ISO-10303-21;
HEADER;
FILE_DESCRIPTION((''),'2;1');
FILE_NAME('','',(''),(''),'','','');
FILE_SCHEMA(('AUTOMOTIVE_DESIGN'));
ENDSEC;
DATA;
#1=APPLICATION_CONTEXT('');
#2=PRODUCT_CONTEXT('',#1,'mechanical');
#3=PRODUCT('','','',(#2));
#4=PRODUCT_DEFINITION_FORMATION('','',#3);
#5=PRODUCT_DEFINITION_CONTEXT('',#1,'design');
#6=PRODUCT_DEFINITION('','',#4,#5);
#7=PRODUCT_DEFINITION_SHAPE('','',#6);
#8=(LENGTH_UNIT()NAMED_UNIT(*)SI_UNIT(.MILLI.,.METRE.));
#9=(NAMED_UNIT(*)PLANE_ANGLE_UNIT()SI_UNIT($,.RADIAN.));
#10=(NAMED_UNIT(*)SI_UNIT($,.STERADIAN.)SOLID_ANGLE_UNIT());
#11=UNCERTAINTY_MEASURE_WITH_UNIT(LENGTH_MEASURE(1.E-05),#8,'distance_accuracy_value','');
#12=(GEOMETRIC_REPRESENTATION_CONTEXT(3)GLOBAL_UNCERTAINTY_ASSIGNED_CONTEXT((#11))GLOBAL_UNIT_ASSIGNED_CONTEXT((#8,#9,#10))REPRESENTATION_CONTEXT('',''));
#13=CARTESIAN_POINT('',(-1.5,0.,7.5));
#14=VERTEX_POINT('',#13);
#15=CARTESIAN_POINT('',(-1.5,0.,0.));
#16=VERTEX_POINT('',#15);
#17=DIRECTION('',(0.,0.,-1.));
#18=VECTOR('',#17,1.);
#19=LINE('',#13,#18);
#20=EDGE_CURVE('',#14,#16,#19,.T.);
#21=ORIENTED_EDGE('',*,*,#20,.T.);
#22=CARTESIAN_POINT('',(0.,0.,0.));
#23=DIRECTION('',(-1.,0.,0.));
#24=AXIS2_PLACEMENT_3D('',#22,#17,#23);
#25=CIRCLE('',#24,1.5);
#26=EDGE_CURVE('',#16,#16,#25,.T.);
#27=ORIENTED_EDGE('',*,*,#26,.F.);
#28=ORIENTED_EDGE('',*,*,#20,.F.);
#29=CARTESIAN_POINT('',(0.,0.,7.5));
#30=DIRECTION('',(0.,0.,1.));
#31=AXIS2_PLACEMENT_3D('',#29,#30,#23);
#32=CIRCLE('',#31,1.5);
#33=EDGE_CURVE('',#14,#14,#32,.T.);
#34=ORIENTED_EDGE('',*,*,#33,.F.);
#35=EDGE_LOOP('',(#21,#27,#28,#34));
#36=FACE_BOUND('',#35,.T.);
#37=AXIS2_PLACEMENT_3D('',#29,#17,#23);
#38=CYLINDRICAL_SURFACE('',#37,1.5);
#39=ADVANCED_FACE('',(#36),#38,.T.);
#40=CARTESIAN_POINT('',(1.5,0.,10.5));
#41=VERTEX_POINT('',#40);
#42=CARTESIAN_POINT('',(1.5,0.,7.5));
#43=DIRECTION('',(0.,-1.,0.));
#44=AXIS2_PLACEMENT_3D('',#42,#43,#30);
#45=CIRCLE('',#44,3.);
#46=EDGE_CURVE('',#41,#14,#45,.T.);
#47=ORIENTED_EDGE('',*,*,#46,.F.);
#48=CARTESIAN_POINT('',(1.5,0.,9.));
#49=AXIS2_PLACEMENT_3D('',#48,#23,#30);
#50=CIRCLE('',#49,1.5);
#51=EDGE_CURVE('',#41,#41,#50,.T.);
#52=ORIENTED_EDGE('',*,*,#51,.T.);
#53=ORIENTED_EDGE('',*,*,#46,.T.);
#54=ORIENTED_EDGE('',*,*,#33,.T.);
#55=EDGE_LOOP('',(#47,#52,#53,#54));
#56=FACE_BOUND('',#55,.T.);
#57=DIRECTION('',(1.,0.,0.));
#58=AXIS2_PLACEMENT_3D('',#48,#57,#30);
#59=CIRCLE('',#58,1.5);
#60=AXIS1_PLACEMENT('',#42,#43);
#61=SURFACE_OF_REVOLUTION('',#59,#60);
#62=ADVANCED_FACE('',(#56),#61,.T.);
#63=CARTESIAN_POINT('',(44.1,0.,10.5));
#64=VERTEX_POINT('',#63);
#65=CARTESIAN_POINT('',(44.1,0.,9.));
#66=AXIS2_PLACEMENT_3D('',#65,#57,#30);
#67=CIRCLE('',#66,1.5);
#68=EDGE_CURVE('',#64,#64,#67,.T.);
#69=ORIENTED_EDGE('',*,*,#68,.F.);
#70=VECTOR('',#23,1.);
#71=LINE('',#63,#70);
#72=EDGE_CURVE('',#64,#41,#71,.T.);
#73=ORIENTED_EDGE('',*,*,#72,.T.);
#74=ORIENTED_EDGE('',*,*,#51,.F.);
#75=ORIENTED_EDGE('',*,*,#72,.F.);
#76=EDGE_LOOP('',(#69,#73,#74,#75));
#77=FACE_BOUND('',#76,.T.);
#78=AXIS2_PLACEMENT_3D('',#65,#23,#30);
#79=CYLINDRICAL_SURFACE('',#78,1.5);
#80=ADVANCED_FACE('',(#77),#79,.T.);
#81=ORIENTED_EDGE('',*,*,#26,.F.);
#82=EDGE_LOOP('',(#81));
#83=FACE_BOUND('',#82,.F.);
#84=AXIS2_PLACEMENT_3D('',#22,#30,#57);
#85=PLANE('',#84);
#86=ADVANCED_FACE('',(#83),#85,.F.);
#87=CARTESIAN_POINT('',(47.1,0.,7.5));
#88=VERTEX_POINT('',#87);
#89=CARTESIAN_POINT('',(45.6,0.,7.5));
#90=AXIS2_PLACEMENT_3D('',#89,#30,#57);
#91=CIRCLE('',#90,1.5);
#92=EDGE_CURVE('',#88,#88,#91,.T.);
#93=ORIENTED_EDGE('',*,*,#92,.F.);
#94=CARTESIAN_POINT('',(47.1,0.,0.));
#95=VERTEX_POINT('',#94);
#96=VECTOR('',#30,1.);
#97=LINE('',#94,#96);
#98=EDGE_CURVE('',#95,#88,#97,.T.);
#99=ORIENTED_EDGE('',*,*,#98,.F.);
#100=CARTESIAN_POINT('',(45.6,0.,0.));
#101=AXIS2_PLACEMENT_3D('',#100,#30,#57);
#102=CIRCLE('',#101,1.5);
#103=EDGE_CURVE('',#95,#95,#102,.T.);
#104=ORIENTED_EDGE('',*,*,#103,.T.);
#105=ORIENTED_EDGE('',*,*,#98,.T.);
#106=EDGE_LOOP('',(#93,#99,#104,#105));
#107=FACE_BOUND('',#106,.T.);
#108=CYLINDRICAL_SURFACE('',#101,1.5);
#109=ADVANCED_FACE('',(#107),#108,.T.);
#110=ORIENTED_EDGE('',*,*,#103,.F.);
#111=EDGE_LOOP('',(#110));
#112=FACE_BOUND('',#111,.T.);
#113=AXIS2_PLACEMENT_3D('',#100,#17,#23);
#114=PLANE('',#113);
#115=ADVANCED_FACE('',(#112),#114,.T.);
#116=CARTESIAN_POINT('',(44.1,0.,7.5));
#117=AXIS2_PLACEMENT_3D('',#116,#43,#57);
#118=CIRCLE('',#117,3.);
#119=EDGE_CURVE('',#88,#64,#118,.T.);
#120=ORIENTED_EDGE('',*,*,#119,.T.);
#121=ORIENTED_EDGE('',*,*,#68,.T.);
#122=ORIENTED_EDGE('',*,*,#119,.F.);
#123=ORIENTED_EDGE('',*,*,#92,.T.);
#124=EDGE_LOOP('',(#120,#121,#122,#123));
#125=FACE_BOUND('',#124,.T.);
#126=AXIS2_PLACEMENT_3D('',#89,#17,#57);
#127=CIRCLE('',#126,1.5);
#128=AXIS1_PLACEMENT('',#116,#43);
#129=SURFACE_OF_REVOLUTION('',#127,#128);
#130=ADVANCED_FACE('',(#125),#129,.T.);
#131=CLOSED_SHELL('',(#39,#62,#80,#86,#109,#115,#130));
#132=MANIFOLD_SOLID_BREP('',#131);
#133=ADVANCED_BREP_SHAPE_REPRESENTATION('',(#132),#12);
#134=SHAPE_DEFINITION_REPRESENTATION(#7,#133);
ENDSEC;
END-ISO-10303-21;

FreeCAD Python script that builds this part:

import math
import FreeCAD as App
import Part
import Sketcher
from FreeCAD import Vector
Q = App.Units.Quantity

doc = App.newDocument("Part")
body = doc.addObject("PartDesign::Body", "Body")

# Sketch on XY plane
sketch1 = body.newObject("Sketcher::SketchObject", "Sketch")
sketch1.AttachmentSupport = (doc.getObject("XY_Plane"), [""])
sketch1.MapMode = "FlatFace"
sketch1.addGeometry(Part.Circle(Vector(45.6, 0, 0), Vector(0, 0, 1), 1.5), False)
sketch1.addConstraint([
    Sketcher.Constraint("PointOnObject", 0, 3, -1),
    Sketcher.Constraint("Diameter", 0, Q("3 mm")),
    Sketcher.Constraint("DistanceX", -1, 1, 0, 3, Q("45.6 mm")),
])

# Sketch on XZ plane
sketch2 = body.newObject("Sketcher::SketchObject", "Sketch001")
sketch2.AttachmentSupport = (doc.getObject("XZ_Plane"), [""])
sketch2.MapMode = "FlatFace"
sketch2.addGeometry([
    Part.LineSegment(Vector(45.6, 0, 0), Vector(45.6, 7.5, 0)),  # 0
    Part.ArcOfCircle(Part.Circle(Vector(44.1, 7.5, 0), Vector(0, 0, 1), 1.5), math.radians(0), math.radians(90)),  # 1
    Part.LineSegment(Vector(44.1, 9, 0), Vector(1.5, 9, 0)),  # 2
    Part.ArcOfCircle(Part.Circle(Vector(1.5, 7.5, 0), Vector(0, 0, 1), 1.5), math.radians(90), math.radians(180)),  # 3
    Part.LineSegment(Vector(0, 7.5, 0), Vector(0, 0, 0)),  # 4
], False)
sketch2.addConstraint([
    Sketcher.Constraint("Tangent", 0, 2, 1, 1),
    Sketcher.Constraint("Tangent", 1, 2, 2, 1),
    Sketcher.Constraint("Tangent", 2, 2, 3, 1),
    Sketcher.Constraint("Tangent", 3, 2, 4, 1),
    Sketcher.Constraint("Vertical", 0),
    Sketcher.Constraint("Horizontal", 2),
    Sketcher.Constraint("Vertical", 4),
    Sketcher.Constraint("Coincident", 4, 2, -1, 1),
    Sketcher.Constraint("Equal", 1, 3),
    Sketcher.Constraint("PointOnObject", 0, 1, -1),
    Sketcher.Constraint("Radius", 1, Q("1.5 mm")),
    Sketcher.Constraint("DistanceX", 2, 2, 2, 1, Q("42.6 mm")),
    Sketcher.Constraint("DistanceY", 0, 1, 0, 2, Q("7.5 mm")),
])
doc.recompute()

additivepipe = body.newObject("PartDesign::AdditivePipe", "AdditivePipe")
additivepipe.Profile = sketch1
additivepipe.Spine = (sketch2, ["Edge1", "Edge2", "Edge3", "Edge4", "Edge5"])

doc.recompute()
